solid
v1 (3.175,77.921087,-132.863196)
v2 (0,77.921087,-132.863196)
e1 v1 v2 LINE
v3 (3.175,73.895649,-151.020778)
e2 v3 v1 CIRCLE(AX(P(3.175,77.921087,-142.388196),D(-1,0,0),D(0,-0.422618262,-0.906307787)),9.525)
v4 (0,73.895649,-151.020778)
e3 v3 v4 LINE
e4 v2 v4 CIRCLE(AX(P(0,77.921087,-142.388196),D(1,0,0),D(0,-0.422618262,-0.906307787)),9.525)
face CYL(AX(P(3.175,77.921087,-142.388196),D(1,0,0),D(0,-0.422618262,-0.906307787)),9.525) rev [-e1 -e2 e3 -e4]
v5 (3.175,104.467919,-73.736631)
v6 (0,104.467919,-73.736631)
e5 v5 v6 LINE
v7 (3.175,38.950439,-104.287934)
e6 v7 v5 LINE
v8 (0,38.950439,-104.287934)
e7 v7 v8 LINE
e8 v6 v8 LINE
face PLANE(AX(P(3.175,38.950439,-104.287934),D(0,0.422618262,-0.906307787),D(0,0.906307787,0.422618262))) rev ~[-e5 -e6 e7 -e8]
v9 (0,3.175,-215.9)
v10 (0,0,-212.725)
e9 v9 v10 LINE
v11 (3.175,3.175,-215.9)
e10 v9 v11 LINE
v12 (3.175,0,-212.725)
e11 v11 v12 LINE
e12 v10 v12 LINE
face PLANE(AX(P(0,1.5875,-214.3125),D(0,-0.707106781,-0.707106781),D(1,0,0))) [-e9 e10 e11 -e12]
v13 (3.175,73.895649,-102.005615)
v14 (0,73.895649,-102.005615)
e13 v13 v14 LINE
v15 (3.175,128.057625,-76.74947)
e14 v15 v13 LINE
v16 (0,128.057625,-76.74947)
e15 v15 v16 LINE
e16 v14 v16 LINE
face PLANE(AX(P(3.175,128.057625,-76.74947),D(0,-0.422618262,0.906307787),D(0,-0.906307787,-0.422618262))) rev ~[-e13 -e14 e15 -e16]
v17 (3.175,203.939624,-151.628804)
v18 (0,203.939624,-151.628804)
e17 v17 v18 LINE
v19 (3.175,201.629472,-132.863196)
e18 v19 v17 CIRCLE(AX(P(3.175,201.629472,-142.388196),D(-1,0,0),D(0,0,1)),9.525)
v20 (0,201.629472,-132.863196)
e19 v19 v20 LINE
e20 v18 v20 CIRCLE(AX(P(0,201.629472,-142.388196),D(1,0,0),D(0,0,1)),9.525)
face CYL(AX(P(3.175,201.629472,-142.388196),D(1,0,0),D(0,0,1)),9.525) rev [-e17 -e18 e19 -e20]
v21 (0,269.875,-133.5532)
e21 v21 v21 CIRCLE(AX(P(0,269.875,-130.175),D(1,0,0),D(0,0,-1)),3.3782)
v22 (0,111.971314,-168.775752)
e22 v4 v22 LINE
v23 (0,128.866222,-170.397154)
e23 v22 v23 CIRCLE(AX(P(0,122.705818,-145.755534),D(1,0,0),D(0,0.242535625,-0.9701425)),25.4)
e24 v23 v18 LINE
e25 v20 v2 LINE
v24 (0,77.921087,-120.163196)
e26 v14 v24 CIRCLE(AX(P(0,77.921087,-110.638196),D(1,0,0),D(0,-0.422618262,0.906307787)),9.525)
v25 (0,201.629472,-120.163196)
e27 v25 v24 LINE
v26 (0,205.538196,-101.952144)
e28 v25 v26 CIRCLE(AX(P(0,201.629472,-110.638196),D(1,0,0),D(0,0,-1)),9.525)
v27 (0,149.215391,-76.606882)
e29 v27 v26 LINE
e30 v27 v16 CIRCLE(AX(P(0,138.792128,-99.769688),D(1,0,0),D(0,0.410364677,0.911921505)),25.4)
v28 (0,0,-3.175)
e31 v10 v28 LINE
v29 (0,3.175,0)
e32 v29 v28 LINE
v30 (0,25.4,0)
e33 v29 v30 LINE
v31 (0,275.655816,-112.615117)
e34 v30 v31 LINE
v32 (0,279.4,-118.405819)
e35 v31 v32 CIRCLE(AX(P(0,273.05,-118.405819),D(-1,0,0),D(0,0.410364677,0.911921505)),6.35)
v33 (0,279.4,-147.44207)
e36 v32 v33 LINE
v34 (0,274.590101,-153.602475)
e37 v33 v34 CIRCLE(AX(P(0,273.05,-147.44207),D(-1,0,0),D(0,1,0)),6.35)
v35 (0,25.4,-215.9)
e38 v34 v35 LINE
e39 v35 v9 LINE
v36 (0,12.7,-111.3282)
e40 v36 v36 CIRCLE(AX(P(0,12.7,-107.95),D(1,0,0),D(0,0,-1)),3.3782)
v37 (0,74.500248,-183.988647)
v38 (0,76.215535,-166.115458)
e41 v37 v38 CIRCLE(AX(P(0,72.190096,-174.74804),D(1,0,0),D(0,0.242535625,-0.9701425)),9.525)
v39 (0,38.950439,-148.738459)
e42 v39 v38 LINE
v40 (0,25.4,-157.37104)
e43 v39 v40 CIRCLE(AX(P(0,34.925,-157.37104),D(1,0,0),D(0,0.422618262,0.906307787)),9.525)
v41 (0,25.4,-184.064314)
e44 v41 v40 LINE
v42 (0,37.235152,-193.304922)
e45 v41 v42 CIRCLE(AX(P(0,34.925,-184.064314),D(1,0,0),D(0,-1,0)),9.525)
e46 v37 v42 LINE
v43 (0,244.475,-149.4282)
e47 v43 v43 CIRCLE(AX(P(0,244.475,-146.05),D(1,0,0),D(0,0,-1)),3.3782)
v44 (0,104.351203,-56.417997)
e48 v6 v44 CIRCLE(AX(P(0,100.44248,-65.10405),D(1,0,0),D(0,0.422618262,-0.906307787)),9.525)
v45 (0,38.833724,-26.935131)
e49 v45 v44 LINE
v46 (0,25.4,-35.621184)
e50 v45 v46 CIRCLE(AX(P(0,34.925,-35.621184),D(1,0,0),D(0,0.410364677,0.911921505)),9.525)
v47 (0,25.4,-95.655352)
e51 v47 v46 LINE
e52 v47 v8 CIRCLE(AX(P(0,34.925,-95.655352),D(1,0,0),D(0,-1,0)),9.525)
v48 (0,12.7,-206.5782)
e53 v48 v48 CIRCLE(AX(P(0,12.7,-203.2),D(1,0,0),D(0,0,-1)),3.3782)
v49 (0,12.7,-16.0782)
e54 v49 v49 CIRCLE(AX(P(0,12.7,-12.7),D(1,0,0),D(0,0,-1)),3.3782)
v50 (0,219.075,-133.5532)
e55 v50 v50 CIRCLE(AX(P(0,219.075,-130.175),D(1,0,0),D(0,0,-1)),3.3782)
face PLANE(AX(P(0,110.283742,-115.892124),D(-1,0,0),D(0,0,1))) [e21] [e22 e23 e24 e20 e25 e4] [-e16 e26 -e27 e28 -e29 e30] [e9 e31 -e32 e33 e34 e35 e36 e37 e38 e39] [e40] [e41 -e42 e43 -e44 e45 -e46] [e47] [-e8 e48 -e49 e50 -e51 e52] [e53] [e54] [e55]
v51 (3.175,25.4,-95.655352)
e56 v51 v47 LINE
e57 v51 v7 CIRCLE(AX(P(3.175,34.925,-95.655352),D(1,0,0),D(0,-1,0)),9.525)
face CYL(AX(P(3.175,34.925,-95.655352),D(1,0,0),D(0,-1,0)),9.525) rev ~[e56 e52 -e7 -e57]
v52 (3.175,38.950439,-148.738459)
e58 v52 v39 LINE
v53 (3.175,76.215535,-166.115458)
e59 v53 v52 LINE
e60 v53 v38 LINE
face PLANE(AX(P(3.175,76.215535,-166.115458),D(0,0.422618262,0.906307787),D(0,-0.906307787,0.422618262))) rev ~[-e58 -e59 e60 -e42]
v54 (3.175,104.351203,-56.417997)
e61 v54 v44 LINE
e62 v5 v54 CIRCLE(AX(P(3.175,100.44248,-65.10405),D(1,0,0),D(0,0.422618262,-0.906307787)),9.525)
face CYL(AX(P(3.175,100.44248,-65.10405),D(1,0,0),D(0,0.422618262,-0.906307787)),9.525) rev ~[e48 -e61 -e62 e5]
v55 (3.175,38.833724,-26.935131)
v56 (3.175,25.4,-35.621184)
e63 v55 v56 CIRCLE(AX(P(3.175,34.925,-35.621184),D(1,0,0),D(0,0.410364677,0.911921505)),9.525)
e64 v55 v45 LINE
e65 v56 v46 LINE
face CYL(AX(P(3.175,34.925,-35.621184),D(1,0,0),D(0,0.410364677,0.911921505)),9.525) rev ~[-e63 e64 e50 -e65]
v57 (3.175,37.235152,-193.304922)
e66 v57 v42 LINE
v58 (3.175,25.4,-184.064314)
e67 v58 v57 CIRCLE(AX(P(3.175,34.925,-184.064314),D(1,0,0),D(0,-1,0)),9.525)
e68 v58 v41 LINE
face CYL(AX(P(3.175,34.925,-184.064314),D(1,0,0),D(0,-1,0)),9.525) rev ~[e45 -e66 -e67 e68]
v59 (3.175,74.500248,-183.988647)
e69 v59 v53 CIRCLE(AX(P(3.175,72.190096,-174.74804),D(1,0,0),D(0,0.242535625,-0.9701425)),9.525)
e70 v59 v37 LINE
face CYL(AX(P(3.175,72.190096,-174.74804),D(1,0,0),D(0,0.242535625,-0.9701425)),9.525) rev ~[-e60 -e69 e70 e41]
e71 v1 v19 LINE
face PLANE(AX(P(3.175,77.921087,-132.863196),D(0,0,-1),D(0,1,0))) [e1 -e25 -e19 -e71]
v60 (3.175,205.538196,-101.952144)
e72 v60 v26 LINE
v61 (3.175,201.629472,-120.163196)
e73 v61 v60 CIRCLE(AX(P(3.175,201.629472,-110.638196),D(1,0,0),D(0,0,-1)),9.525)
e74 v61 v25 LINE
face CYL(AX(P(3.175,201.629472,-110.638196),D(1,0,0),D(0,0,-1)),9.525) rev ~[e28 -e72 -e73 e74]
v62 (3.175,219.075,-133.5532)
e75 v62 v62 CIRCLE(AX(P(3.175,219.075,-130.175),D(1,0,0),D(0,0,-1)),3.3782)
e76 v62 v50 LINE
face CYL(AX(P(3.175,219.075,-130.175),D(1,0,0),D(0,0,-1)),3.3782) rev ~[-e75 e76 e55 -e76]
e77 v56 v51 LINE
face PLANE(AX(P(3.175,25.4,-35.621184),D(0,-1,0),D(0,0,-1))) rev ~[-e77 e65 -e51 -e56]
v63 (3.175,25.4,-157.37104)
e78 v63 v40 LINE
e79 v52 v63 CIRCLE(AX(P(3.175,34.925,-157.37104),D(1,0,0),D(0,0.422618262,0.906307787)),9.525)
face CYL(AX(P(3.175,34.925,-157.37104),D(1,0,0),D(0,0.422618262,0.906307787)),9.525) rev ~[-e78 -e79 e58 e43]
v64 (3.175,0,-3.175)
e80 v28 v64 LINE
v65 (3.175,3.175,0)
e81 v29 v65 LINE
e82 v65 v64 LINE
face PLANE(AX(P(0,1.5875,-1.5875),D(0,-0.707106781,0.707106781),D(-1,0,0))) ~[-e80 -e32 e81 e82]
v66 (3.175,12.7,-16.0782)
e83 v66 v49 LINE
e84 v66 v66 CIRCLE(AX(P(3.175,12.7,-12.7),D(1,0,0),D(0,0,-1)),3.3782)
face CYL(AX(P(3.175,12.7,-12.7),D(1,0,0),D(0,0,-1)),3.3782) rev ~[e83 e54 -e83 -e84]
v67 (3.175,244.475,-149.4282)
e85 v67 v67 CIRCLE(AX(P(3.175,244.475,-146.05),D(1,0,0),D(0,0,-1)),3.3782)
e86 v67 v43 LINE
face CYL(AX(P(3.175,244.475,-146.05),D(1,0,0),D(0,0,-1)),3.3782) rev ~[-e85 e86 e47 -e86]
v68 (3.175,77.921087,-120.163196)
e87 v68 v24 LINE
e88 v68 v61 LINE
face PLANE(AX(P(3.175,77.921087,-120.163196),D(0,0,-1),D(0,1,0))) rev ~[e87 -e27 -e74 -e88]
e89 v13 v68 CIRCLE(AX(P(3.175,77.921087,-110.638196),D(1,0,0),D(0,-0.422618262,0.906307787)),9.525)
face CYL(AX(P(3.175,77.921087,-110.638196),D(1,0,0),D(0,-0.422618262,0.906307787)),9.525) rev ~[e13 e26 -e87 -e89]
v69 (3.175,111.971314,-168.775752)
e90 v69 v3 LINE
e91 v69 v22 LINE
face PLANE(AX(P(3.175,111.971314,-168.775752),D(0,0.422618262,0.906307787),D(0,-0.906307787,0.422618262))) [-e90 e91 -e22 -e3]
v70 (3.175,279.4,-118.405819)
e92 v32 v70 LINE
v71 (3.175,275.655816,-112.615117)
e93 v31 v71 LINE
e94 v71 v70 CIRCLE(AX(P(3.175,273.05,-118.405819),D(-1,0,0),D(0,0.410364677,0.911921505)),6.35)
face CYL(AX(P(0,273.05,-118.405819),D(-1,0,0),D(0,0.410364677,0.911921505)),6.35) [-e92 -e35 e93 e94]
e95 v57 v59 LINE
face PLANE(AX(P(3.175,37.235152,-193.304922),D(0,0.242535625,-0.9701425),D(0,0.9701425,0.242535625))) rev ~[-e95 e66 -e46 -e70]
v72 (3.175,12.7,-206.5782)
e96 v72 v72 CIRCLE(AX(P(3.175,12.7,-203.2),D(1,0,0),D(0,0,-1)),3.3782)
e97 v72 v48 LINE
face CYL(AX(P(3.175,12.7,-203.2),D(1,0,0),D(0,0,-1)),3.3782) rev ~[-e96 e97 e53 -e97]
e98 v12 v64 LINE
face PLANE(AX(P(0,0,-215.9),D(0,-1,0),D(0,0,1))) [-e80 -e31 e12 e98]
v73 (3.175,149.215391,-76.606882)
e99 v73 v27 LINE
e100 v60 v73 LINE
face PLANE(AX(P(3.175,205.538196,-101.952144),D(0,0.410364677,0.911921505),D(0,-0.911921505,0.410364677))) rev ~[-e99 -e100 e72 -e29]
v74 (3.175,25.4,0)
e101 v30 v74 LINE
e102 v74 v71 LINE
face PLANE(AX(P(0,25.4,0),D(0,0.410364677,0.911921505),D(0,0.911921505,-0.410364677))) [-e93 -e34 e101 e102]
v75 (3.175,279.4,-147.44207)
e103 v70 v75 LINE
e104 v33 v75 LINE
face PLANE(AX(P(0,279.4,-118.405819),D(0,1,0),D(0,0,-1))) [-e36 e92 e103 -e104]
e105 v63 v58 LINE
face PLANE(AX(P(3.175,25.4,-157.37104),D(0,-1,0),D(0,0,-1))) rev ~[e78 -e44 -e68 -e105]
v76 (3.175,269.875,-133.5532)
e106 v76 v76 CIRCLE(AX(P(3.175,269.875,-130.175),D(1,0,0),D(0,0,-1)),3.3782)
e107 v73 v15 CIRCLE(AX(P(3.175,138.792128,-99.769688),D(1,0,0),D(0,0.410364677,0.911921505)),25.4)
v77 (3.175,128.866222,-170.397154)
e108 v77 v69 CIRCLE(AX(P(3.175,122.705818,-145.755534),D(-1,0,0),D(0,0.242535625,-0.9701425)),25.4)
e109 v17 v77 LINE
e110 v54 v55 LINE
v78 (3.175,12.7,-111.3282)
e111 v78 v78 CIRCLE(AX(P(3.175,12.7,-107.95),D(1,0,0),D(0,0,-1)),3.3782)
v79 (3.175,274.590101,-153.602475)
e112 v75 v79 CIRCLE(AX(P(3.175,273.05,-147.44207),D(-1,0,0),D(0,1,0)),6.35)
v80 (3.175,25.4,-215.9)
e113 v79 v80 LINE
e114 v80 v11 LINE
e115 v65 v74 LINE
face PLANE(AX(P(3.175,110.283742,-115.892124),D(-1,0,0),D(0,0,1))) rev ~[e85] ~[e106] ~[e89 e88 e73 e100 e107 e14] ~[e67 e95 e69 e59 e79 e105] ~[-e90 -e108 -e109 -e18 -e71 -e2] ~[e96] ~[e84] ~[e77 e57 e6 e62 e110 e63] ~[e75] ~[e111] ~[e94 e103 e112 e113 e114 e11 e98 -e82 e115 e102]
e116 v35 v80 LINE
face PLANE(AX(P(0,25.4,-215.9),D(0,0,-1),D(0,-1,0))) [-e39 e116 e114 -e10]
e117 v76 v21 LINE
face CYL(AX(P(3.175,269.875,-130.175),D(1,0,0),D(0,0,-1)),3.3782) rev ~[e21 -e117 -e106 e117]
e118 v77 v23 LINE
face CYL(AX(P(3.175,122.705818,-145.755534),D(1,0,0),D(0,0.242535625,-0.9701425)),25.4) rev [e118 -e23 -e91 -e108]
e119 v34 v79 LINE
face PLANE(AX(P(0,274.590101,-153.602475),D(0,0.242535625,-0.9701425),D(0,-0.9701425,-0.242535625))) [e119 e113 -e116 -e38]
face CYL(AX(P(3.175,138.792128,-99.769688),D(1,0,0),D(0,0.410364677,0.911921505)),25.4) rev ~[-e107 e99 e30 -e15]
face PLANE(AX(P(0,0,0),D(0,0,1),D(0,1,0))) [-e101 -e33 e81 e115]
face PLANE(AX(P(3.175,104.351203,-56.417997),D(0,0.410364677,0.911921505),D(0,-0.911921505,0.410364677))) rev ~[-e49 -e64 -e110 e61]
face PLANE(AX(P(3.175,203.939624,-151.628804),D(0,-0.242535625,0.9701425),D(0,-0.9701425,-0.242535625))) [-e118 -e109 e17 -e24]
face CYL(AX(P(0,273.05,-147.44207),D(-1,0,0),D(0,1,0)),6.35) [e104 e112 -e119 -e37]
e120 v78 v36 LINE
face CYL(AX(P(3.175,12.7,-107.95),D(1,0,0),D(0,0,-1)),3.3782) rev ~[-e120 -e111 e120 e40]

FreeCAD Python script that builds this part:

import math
import FreeCAD as App
import Part
import Sketcher
from FreeCAD import Vector
Q = App.Units.Quantity


def edges_at(feature, points):
    """Names of the edges that pass closest to the given points."""
    edges = feature.Shape.Edges
    near = lambda p: min(range(len(edges)), key=lambda i: edges[i].distToShape(Part.Vertex(*p))[0])
    return sorted({f"Edge{near(p) + 1}" for p in points})

doc = App.newDocument("Part")
params = doc.addObject("Spreadsheet::Sheet", "Params")
for row, (alias, value) in enumerate([
    ("sketch1_width", "1 in"),
    ("sketch1_radius", "0.25 in"),
    ("sketch1_height", "8.5 in"),
    ("pad1_length", "0.125 in"),
    ("sketch2_diameter", "0.266 in"),
    ("sketch3_diameter", "0.266 in"),
    ("chamfer_size", "0.125 in"),
    ("sketch4_radius", "1 in"),
    ("sketch4_radius2", "0.375 in"),
], start=1):
    params.set(f"A{row}", alias)
    params.set(f"B{row}", "=" + value)
    params.setAlias(f"B{row}", alias)

body = doc.addObject("PartDesign::Body", "Body")

sketch1 = doc.addObject("Sketcher::SketchObject", "Sketch")
body.addObject(sketch1)
sketch1.AttachmentSupport = (doc.YZ_Plane, [""])
sketch1.MapMode = "FlatFace"
sketch1.addGeometry([
    Part.LineSegment(Vector(279.4, -147.44207, 0), Vector(279.4, -118.405819, 0)),
    Part.ArcOfCircle(Part.Circle(Vector(273.05, -118.405819, 0), Vector(0, 0, 1), 6.35), math.radians(0), math.radians(65.772255)),
    Part.LineSegment(Vector(275.655816, -112.615117, 0), Vector(25.4, 0, 0)),
    Part.LineSegment(Vector(25.4, 0, 0), Vector(0, 0, 0)),
    Part.LineSegment(Vector(0, 0, 0), Vector(0, -215.9, 0)),
    Part.LineSegment(Vector(0, -215.9, 0), Vector(25.4, -215.9, 0)),
    Part.LineSegment(Vector(25.4, -215.9, 0), Vector(274.590101, -153.602475, 0)),
    Part.ArcOfCircle(Part.Circle(Vector(273.05, -147.44207, 0), Vector(0, 0, 1), 6.35), math.radians(-75.963757), math.radians(0)),
], False)
sketch1.addConstraint([
    Sketcher.Constraint("Tangent", 0, 2, 1, 1),
    Sketcher.Constraint("Tangent", 1, 2, 2, 1),
    Sketcher.Constraint("Coincident", 2, 2, 3, 1),
    Sketcher.Constraint("Coincident", 3, 2, 4, 1),
    Sketcher.Constraint("Coincident", 4, 2, 5, 1),
    Sketcher.Constraint("Coincident", 5, 2, 6, 1),
    Sketcher.Constraint("Tangent", 6, 2, 7, 1),
    Sketcher.Constraint("Tangent", 7, 2, 0, 1),
    Sketcher.Constraint("Vertical", 0),
    Sketcher.Constraint("Horizontal", 3),
    Sketcher.Constraint("Vertical", 4),
    Sketcher.Constraint("Horizontal", 5),
    Sketcher.Constraint("Coincident", 3, 2, -1, 1),
    Sketcher.Constraint("Equal", 1, 7),
    Sketcher.Constraint("Vertical", 2, 2, 5, 2),
    Sketcher.Constraint("DistanceX", 3, 2, 3, 1, Q("1 in")),
    Sketcher.Constraint("Radius", 1, Q("0.25 in")),
    Sketcher.Constraint("DistanceY", 4, 2, 4, 1, Q("8.5 in")),
    Sketcher.Constraint("DistanceX", -1, 1, 0, 2, Q("11 in")),
    Sketcher.Constraint("DistanceY", 0, 1, 0, 2, Q("29.036251 mm")),
    Sketcher.Constraint("DistanceX", -1, 1, 6, 2, Q("274.590101 mm")),
])
sketch1.setExpression("Constraints[15]", "Params.sketch1_width")
sketch1.setExpression("Constraints[16]", "Params.sketch1_radius")
sketch1.setExpression("Constraints[17]", "Params.sketch1_height")
pad1 = doc.addObject("PartDesign::Pad", "Pad")
body.addObject(pad1)
pad1.Profile = sketch1
pad1.setExpression("Length", "Params.pad1_length")

sketch2 = doc.addObject("Sketcher::SketchObject", "Sketch001")
body.addObject(sketch2)
sketch2.AttachmentSupport = (doc.YZ_Plane, [""])
sketch2.MapMode = "FlatFace"
sketch2.AttachmentOffset = App.Placement(Vector(0, 0, 0.125 * 25.4), App.Rotation())
sketch2.addGeometry([
    Part.Circle(Vector(244.475, -146.05, 0), Vector(0, 0, 1), 3.3782),
    Part.Circle(Vector(219.075, -130.175, 0), Vector(0, 0, 1), 3.3782),
    Part.Circle(Vector(269.875, -130.175, 0), Vector(0, 0, 1), 3.3782),
], False)
sketch2.addConstraint([
    Sketcher.Constraint("Equal", 0, 1),
    Sketcher.Constraint("Equal", 1, 2),
    Sketcher.Constraint("Horizontal", 1, 3, 2, 3),
    Sketcher.Constraint("Diameter", 0, Q("0.266 in")),
    Sketcher.Constraint("DistanceX", 1, 3, 0, 3, Q("1 in")),
    Sketcher.Constraint("DistanceX", 0, 3, 2, 3, Q("1 in")),
    Sketcher.Constraint("DistanceY", 0, 3, -1, 1, Q("5.75 in")),
    Sketcher.Constraint("DistanceX", -1, 1, 0, 3, Q("9.625 in")),
    Sketcher.Constraint("DistanceY", 1, 3, -1, 1, Q("5.125 in")),
])
sketch2.setExpression("Constraints[3]", "Params.sketch2_diameter")
pocket1 = doc.addObject("PartDesign::Pocket", "Pocket")
body.addObject(pocket1)
pocket1.Profile = sketch2
pocket1.Type = "ThroughAll"

sketch3 = doc.addObject("Sketcher::SketchObject", "Sketch002")
body.addObject(sketch3)
sketch3.AttachmentSupport = (doc.YZ_Plane, [""])
sketch3.MapMode = "FlatFace"
sketch3.AttachmentOffset = App.Placement(Vector(0, 0, 0.125 * 25.4), App.Rotation())
sketch3.addGeometry([
    Part.Circle(Vector(12.7, -12.7, 0), Vector(0, 0, 1), 3.3782),
    Part.Circle(Vector(12.7, -107.95, 0), Vector(0, 0, 1), 3.3782),
    Part.Circle(Vector(12.7, -203.2, 0), Vector(0, 0, 1), 3.3782),
], False)
sketch3.addConstraint([
    Sketcher.Constraint("Equal", 0, 1),
    Sketcher.Constraint("Equal", 1, 2),
    Sketcher.Constraint("Vertical", 0, 3, 1, 3),
    Sketcher.Constraint("Vertical", 1, 3, 2, 3),
    Sketcher.Constraint("Diameter", 0, Q("0.266 in")),
    Sketcher.Constraint("DistanceY", 2, 3, -1, 1, Q("8 in")),
    Sketcher.Constraint("DistanceX", -1, 1, 0, 3, Q("0.5 in")),
    Sketcher.Constraint("DistanceY", 0, 3, -1, 1, Q("0.5 in")),
    Sketcher.Constraint("DistanceY", 1, 3, -1, 1, Q("4.25 in")),
])
sketch3.setExpression("Constraints[4]", "Params.sketch3_diameter")
pocket2 = doc.addObject("PartDesign::Pocket", "Pocket001")
body.addObject(pocket2)
pocket2.Profile = sketch3
pocket2.Type = "ThroughAll"
doc.recompute()

chamfer = doc.addObject("PartDesign::Chamfer", "Chamfer")
body.addObject(chamfer)
chamfer.Base = (pocket2, edges_at(pocket2, [(1.587, 0, -215.9), (1.587, 0, 0)]))
chamfer.setExpression("Size", "Params.chamfer_size")

sketch4 = doc.addObject("Sketcher::SketchObject", "Sketch003")
body.addObject(sketch4)
sketch4.AttachmentSupport = (doc.YZ_Plane, [""])
sketch4.MapMode = "FlatFace"
sketch4.AttachmentOffset = App.Placement(Vector(0, 0, 0.125 * 25.4), App.Rotation())
sketch4.addGeometry([
    Part.LineSegment(Vector(25.4, -35.621184, 0), Vector(25.4, -95.655352, 0)),
    Part.ArcOfCircle(Part.Circle(Vector(34.925, -95.655352, 0), Vector(0, 0, 1), 9.525), math.radians(180), math.radians(295)),
    Part.LineSegment(Vector(38.950439, -104.287934, 0), Vector(104.467919, -73.736631, 0)),
    Part.ArcOfCircle(Part.Circle(Vector(100.44248, -65.10405, 0), Vector(0, 0, 1), 9.525), math.radians(-65), math.radians(65.772255)),
    Part.LineSegment(Vector(104.351203, -56.417997, 0), Vector(38.833724, -26.935131, 0)),
    Part.ArcOfCircle(Part.Circle(Vector(34.925, -35.621184, 0), Vector(0, 0, 1), 9.525), math.radians(65.772255), math.radians(180)),
    Part.LineSegment(Vector(205.538196, -101.952144, 0), Vector(149.215391, -76.606882, 0)),
    Part.ArcOfCircle(Part.Circle(Vector(138.792128, -99.769688, 0), Vector(0, 0, 1), 25.4), math.radians(65.772255), math.radians(115)),
    Part.LineSegment(Vector(128.057625, -76.74947, 0), Vector(73.895649, -102.005615, 0)),
    Part.ArcOfCircle(Part.Circle(Vector(77.921087, -110.638196, 0), Vector(0, 0, 1), 9.525), math.radians(115), math.radians(270)),
    Part.LineSegment(Vector(77.921087, -120.163196, 0), Vector(201.629472, -120.163196, 0)),
    Part.ArcOfCircle(Part.Circle(Vector(201.629472, -110.638196, 0), Vector(0, 0, 1), 9.525), math.radians(-90), math.radians(65.772255)),
    Part.LineSegment(Vector(128.866222, -170.397154, 0), Vector(203.939624, -151.628804, 0)),
    Part.ArcOfCircle(Part.Circle(Vector(201.629472, -142.388196, 0), Vector(0, 0, 1), 9.525), math.radians(-75.963757), math.radians(90)),
    Part.LineSegment(Vector(201.629472, -132.863196, 0), Vector(77.921087, -132.863196, 0)),
    Part.ArcOfCircle(Part.Circle(Vector(77.921087, -142.388196, 0), Vector(0, 0, 1), 9.525), math.radians(90), math.radians(245)),
    Part.LineSegment(Vector(73.895649, -151.020778, 0), Vector(111.971314, -168.775752, 0)),
    Part.ArcOfCircle(Part.Circle(Vector(122.705818, -145.755534, 0), Vector(0, 0, 1), 25.4), math.radians(-115), math.radians(-75.963757)),
    Part.LineSegment(Vector(25.4, -157.37104, 0), Vector(25.4, -184.064314, 0)),
    Part.ArcOfCircle(Part.Circle(Vector(34.925, -184.064314, 0), Vector(0, 0, 1), 9.525), math.radians(180), math.radians(284.036243)),
    Part.LineSegment(Vector(37.235152, -193.304922, 0), Vector(74.500248, -183.988647, 0)),
    Part.ArcOfCircle(Part.Circle(Vector(72.190096, -174.74804, 0), Vector(0, 0, 1), 9.525), math.radians(-75.963757), math.radians(65)),
    Part.LineSegment(Vector(76.215535, -166.115458, 0), Vector(38.950439, -148.738459, 0)),
    Part.ArcOfCircle(Part.Circle(Vector(34.925, -157.37104, 0), Vector(0, 0, 1), 9.525), math.radians(65), math.radians(180)),
], False)
sketch4.addConstraint([
    Sketcher.Constraint("Tangent", 0, 2, 1, 1),
    Sketcher.Constraint("Tangent", 1, 2, 2, 1),
    Sketcher.Constraint("Tangent", 2, 2, 3, 1),
    Sketcher.Constraint("Tangent", 3, 2, 4, 1),
    Sketcher.Constraint("Tangent", 4, 2, 5, 1),
    Sketcher.Constraint("Tangent", 5, 2, 0, 1),
    Sketcher.Constraint("Tangent", 6, 2, 7, 1),
    Sketcher.Constraint("Tangent", 7, 2, 8, 1),
    Sketcher.Constraint("Tangent", 8, 2, 9, 1),
    Sketcher.Constraint("Tangent", 9, 2, 10, 1),
    Sketcher.Constraint("Tangent", 10, 2, 11, 1),
    Sketcher.Constraint("Tangent", 11, 2, 6, 1),
    Sketcher.Constraint("Tangent", 12, 2, 13, 1),
    Sketcher.Constraint("Tangent", 13, 2, 14, 1),
    Sketcher.Constraint("Tangent", 14, 2, 15, 1),
    Sketcher.Constraint("Tangent", 15, 2, 16, 1),
    Sketcher.Constraint("Tangent", 16, 2, 17, 1),
    Sketcher.Constraint("Tangent", 17, 2, 12, 1),
    Sketcher.Constraint("Tangent", 18, 2, 19, 1),
    Sketcher.Constraint("Tangent", 19, 2, 20, 1),
    Sketcher.Constraint("Tangent", 20, 2, 21, 1),
    Sketcher.Constraint("Tangent", 21, 2, 22, 1),
    Sketcher.Constraint("Tangent", 22, 2, 23, 1),
    Sketcher.Constraint("Tangent", 23, 2, 18, 1),
    Sketcher.Constraint("Vertical", 0),
    Sketcher.Constraint("Horizontal", 10),
    Sketcher.Constraint("Horizontal", 14),
    Sketcher.Constraint("Vertical", 18),
    Sketcher.Constraint("Equal", 1, 3),
    Sketcher.Constraint("Equal", 3, 5),
    Sketcher.Constraint("Equal", 5, 9),
    Sketcher.Constraint("Equal", 9, 11),
    Sketcher.Constraint("Equal", 11, 13),
    Sketcher.Constraint("Equal", 13, 15),
    Sketcher.Constraint("Equal", 7, 17),
    Sketcher.Constraint("Equal", 15, 19),
    Sketcher.Constraint("Equal", 19, 21),
    Sketcher.Constraint("Equal", 21, 23),
    Sketcher.Constraint("Parallel", 4, 6),
    Sketcher.Constraint("Parallel", 2, 8),
    Sketcher.Constraint("Parallel", 12, 20),
    Sketcher.Constraint("Parallel", 16, 22),
    Sketcher.Constraint("Vertical", 11, 3, 13, 3),
    Sketcher.Constraint("Vertical", 9, 3, 15, 3),
    Sketcher.Constraint("Vertical", 5, 3, 19, 3),
    Sketcher.Constraint("Vertical", 8, 2, 15, 2),
    Sketcher.Constraint("Radius", 7, Q("1 in")),
    Sketcher.Constraint("DistanceX", -1, 1, 0, 2, Q("1 in")),
    Sketcher.Constraint("Angle", 2, Q("25 deg")),
    Sketcher.Constraint("Radius", 1, Q("0.375 in")),
    Sketcher.Constraint("DistanceY", 13, 2, 10, 2, Q("0.5 in")),
    Sketcher.Constraint("DistanceY", 15, 2, -1, 1, Q("5.9456999 in")),
    Sketcher.Constraint("DistanceY", 0, 2, 0, 1, Q("60.034168 mm")),
    Sketcher.Constraint("DistanceY", 21, 3, 23, 3, Q("17.377 mm")),
    Sketcher.Constraint("DistanceY", 9, 3, 3, 2, Q("54.220199 mm")),
    Sketcher.Constraint("DistanceY", 17, 2, 16, 2, Q("1.621402 mm")),
    Sketcher.Constraint("DistanceX", 15, 2, 20, 2, Q("0.6046 mm")),
    Sketcher.Constraint("Distance", 2, Q("72.29054 mm")),
    Sketcher.Constraint("Distance", 8, Q("59.761128 mm")),
    Sketcher.Constraint("DistanceY", 21, 3, -1, 1, Q("174.74804 mm")),
])
sketch4.setExpression("Constraints[46]", "Params.sketch4_radius")
sketch4.setExpression("Constraints[49]", "Params.sketch4_radius2")
pocket3 = doc.addObject("PartDesign::Pocket", "Pocket002")
body.addObject(pocket3)
pocket3.Profile = sketch4
pocket3.Type = "ThroughAll"

doc.recompute()
